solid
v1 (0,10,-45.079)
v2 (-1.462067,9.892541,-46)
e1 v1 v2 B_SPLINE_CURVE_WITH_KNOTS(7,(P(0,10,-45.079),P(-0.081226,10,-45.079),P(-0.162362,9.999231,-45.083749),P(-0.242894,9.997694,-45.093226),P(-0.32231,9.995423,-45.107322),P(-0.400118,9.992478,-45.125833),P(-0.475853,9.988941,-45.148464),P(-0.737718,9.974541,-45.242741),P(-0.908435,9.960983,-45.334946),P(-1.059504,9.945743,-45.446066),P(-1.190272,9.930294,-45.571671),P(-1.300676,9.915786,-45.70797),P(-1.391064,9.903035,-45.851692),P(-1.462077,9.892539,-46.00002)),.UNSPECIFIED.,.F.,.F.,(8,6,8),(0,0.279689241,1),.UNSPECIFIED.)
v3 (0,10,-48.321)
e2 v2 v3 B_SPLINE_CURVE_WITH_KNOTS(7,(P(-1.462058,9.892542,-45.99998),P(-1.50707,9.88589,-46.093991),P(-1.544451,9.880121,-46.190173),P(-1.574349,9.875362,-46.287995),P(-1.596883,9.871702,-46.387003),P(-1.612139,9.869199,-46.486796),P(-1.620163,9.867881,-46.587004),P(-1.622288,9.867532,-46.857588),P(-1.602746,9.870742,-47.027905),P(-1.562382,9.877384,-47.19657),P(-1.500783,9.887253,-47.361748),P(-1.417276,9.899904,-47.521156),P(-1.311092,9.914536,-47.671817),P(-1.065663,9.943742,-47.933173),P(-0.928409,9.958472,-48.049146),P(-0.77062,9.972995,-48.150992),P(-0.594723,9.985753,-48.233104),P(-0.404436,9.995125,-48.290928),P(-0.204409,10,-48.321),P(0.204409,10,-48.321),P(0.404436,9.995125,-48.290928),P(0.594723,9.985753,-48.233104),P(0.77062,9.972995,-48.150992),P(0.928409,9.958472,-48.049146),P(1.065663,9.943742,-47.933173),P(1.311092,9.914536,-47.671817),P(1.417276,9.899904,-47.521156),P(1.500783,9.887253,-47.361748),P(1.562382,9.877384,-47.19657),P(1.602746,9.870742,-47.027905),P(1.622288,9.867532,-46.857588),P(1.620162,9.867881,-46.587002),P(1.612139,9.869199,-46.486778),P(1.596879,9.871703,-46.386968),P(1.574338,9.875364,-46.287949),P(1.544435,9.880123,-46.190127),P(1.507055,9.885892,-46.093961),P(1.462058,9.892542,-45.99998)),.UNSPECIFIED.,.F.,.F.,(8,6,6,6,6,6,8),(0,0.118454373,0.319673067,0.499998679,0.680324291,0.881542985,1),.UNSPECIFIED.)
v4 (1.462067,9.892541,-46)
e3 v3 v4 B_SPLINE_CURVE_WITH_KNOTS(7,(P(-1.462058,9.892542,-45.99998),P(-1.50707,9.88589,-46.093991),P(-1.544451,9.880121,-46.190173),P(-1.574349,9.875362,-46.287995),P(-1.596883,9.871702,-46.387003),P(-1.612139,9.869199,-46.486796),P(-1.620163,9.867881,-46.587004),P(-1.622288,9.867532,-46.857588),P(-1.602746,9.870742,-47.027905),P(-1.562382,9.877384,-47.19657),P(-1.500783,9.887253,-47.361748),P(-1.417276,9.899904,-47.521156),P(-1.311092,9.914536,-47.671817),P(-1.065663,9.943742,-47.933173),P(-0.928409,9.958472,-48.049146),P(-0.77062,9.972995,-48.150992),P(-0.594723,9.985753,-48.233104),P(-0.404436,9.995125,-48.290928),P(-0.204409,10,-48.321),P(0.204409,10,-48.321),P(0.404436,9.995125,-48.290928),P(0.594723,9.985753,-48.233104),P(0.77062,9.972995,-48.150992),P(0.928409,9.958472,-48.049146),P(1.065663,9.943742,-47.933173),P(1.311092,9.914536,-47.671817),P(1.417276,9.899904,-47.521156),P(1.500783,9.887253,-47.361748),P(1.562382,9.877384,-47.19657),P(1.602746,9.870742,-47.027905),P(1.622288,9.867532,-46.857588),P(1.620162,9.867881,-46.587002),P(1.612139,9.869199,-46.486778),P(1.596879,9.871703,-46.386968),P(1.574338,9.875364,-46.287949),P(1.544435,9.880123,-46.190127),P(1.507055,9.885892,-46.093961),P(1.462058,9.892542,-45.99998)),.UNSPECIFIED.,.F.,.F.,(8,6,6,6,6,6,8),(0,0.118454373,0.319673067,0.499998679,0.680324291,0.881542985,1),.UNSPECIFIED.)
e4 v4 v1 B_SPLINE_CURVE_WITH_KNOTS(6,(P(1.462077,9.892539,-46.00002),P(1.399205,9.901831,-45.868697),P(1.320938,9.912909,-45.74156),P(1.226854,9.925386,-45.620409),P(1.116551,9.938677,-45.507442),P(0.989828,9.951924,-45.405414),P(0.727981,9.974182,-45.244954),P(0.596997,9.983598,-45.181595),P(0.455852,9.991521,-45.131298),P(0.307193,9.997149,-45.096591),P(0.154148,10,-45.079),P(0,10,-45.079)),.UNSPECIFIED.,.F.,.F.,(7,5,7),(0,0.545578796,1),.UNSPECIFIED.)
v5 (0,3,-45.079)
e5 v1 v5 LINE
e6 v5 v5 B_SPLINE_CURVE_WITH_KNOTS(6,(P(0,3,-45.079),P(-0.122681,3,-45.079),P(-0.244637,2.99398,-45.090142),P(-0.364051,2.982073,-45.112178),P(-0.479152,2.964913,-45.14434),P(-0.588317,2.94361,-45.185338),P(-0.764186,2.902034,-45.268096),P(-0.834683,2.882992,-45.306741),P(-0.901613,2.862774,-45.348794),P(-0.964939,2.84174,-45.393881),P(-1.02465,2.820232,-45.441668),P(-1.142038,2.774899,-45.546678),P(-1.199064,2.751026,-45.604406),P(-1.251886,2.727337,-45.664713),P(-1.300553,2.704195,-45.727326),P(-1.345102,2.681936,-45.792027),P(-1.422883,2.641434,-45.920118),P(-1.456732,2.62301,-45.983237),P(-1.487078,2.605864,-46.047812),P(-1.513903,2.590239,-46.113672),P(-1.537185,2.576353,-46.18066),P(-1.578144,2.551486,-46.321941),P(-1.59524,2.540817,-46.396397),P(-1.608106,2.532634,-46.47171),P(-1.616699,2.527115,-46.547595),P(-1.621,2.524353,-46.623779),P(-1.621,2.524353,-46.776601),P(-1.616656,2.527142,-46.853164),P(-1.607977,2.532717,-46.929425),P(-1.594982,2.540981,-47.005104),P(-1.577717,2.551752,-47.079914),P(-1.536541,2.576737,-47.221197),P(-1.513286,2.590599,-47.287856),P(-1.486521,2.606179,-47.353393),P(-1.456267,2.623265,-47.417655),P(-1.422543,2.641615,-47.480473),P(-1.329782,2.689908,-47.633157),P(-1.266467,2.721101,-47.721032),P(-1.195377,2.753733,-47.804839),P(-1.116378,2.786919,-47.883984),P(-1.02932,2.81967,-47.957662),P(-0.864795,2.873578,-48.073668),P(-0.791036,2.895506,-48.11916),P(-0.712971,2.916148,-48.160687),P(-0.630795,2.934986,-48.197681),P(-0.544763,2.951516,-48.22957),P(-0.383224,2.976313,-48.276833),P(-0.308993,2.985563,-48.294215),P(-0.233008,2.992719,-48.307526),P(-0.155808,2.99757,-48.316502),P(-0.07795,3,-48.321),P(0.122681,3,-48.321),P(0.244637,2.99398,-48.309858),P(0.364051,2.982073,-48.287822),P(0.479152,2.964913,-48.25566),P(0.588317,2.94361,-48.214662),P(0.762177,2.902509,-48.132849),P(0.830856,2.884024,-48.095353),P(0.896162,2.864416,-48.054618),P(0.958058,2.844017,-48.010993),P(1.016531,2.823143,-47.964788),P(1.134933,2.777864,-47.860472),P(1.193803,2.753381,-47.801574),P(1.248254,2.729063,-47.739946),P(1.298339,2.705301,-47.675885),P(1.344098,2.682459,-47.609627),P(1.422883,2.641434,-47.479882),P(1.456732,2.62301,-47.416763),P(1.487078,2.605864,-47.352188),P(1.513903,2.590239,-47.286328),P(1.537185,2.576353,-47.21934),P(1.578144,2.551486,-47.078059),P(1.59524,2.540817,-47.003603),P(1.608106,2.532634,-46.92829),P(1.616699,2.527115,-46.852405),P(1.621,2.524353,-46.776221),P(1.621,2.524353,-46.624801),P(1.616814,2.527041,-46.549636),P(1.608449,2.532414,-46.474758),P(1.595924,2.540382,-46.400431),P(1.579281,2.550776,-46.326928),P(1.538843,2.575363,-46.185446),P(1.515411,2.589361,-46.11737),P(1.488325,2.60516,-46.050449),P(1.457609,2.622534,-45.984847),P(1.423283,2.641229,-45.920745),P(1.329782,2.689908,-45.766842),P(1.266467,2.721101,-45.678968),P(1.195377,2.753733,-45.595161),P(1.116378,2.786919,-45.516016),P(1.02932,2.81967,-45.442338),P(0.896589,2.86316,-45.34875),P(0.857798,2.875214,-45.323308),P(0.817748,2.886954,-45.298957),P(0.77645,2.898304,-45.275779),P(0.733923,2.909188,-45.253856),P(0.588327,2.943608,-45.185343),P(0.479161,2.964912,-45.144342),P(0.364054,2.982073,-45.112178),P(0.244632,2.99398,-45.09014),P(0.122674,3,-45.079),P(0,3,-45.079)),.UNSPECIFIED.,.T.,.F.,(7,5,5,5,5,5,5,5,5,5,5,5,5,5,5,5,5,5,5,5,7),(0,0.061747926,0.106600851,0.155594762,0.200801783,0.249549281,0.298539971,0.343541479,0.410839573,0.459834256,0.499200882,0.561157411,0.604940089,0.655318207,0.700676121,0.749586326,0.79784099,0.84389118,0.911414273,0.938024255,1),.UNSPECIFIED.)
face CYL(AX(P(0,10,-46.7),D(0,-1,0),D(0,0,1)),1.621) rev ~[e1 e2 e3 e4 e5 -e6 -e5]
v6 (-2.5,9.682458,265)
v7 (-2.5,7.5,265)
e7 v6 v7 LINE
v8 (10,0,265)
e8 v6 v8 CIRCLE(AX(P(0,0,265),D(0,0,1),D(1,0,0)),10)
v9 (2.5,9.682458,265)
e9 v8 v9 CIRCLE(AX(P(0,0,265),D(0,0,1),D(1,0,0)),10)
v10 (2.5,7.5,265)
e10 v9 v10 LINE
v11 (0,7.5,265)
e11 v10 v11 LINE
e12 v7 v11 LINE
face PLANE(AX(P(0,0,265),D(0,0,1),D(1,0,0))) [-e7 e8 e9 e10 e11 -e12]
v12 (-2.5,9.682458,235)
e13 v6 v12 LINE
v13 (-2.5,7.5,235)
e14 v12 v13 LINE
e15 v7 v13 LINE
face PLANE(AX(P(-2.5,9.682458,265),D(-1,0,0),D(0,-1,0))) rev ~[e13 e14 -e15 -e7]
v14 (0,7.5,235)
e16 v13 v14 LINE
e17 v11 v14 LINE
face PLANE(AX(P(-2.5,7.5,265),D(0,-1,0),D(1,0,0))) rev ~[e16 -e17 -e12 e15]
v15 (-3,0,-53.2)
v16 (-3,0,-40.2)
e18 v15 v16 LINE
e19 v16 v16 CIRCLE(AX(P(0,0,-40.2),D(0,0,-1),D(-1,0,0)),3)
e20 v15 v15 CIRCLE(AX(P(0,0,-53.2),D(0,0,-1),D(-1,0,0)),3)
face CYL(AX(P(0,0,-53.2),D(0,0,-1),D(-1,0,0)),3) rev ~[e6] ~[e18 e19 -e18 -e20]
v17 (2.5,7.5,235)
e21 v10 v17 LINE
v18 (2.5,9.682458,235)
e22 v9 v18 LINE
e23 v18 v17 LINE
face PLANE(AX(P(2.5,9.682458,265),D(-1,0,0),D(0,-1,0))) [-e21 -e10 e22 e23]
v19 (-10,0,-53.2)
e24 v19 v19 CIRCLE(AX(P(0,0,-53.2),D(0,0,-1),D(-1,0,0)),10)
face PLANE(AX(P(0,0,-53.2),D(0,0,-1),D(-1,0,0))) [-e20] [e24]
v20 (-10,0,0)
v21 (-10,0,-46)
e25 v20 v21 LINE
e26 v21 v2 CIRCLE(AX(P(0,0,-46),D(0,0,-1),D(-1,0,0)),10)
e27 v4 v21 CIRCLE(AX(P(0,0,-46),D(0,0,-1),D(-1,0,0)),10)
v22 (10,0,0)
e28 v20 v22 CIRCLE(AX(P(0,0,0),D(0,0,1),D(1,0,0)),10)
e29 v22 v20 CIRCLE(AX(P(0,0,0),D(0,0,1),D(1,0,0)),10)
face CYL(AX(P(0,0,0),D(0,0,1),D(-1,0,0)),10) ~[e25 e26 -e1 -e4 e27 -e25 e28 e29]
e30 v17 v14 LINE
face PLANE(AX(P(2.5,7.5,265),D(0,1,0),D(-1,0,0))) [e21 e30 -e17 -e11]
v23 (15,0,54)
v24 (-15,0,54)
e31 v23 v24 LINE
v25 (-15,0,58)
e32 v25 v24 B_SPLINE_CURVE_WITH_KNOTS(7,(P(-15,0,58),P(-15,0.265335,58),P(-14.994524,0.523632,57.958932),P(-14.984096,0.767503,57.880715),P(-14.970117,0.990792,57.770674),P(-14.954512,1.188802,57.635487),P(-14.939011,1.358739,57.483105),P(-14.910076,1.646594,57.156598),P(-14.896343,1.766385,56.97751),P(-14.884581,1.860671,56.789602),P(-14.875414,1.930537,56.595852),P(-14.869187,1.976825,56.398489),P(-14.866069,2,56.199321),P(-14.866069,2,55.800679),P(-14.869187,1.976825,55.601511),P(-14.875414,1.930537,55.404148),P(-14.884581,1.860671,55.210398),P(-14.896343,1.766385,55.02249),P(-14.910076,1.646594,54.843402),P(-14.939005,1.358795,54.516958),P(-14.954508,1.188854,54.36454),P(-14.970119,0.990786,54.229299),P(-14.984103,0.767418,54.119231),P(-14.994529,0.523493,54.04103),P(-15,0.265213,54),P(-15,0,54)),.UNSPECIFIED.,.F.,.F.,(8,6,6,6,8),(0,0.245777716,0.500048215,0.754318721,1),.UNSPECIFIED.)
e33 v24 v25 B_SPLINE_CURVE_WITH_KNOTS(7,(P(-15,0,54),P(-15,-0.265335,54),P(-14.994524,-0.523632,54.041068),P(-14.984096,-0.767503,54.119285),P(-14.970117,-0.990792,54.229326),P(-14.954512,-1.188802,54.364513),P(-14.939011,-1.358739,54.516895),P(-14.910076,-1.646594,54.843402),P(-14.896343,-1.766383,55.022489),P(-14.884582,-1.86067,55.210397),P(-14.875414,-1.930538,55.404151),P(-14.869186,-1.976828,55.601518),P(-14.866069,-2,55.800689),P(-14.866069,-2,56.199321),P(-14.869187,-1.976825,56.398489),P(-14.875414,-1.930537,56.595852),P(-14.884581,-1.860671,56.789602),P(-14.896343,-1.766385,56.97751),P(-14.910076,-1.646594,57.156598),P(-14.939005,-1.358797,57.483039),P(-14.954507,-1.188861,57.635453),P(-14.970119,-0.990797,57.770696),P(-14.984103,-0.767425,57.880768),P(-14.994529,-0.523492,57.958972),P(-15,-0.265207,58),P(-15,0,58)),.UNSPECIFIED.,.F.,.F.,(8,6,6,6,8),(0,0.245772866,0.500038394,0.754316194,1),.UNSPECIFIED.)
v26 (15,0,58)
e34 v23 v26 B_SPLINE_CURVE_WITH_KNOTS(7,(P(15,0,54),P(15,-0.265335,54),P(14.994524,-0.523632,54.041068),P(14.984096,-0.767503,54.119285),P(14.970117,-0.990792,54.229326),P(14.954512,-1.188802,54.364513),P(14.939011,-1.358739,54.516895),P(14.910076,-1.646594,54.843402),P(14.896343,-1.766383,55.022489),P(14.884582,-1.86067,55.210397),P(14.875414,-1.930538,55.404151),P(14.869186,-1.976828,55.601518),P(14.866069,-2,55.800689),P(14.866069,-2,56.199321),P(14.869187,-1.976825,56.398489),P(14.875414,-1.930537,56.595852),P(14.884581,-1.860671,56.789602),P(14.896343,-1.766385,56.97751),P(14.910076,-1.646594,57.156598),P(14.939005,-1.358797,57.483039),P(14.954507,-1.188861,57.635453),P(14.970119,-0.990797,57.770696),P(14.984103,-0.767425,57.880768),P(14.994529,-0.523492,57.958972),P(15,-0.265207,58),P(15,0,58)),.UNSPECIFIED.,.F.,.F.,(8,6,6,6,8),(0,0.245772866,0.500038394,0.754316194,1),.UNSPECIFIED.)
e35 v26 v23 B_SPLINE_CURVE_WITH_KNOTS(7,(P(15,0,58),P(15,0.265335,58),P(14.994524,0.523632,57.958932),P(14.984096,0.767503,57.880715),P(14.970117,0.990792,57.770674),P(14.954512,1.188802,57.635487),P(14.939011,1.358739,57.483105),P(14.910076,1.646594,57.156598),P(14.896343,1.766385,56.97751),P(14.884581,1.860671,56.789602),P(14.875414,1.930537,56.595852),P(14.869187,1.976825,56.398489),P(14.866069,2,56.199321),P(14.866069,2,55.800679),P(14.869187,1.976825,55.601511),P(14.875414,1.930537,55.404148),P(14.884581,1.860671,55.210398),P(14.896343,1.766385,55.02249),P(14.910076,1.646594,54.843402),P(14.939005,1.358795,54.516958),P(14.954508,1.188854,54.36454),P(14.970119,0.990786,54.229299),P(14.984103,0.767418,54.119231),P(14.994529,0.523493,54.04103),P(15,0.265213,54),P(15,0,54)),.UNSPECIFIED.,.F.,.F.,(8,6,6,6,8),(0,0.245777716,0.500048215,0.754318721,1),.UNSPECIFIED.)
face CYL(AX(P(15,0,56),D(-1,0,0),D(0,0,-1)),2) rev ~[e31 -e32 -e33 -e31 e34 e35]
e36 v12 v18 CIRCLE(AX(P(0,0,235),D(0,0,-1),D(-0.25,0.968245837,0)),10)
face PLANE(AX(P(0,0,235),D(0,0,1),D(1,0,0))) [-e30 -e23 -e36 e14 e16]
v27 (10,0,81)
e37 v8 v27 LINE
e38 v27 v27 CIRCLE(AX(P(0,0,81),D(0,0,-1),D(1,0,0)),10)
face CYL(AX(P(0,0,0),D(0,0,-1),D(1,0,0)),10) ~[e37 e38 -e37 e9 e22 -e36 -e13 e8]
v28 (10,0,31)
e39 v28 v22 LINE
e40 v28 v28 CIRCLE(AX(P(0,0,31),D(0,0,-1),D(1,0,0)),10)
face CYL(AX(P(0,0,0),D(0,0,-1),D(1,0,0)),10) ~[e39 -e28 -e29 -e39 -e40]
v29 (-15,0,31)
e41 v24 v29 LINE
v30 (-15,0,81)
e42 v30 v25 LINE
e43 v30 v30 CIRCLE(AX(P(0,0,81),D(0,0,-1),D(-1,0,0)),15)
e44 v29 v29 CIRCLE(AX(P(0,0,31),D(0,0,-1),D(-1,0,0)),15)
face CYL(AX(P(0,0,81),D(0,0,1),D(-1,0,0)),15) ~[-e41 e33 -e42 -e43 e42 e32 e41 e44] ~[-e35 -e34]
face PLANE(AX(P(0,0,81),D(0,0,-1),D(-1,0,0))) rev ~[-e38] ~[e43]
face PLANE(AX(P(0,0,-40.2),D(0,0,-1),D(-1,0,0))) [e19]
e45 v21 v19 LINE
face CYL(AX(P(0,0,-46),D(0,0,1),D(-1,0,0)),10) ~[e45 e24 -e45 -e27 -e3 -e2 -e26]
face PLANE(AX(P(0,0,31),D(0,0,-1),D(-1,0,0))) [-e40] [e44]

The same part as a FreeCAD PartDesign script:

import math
import FreeCAD as App
import Part
import Sketcher
from FreeCAD import Vector

doc = App.newDocument("Part")
body = doc.addObject("PartDesign::Body", "Body")

# Sketch on XY plane
sketch1 = body.newObject("Sketcher::SketchObject", "Sketch")
sketch1.AttachmentSupport = (doc.getObject("XY_Plane"), [""])
sketch1.MapMode = "FlatFace"
sketch1.addGeometry(Part.Circle(Vector(0, 0, 0), Vector(0, 0, 1), 10), False)
sketch1.addConstraint([
    Sketcher.Constraint("Coincident", 0, 3, -1, 1),
    Sketcher.Constraint("Diameter", 0, 20.0),
])
pad1 = body.newObject("PartDesign::Pad", "Pad")
pad1.Profile = sketch1
pad1.Length = 65

# Sketch on XY plane
sketch2 = body.newObject("Sketcher::SketchObject", "Sketch001")
sketch2.AttachmentSupport = (doc.getObject("XY_Plane"), [""])
sketch2.MapMode = "FlatFace"
sketch2.AttachmentOffset = App.Placement(Vector(0, 0, 65), App.Rotation())
sketch2.addGeometry(Part.Circle(Vector(0, 0, 0), Vector(0, 0, 1), 10), False)
sketch2.addConstraint([
    Sketcher.Constraint("Coincident", 0, 3, -1, 1),
    Sketcher.Constraint("Diameter", 0, 20.0),
])
pad2 = body.newObject("PartDesign::Pad", "Pad001")
pad2.Profile = sketch2
pad2.Length = 150

# Sketch on XY plane
sketch3 = body.newObject("Sketcher::SketchObject", "Sketch002")
sketch3.AttachmentSupport = (doc.getObject("XY_Plane"), [""])
sketch3.MapMode = "FlatFace"
sketch3.addGeometry(Part.Circle(Vector(0, 0, 0), Vector(0, 0, 1), 10), False)
sketch3.addConstraint([
    Sketcher.Constraint("Coincident", 0, 3, -1, 1),
    Sketcher.Constraint("Diameter", 0, 20.0),
])
pad3 = body.newObject("PartDesign::Pad", "Pad002")
pad3.Profile = sketch3
pad3.Length = 100
pad3.Reversed = True

# Sketch on XY plane
sketch4 = body.newObject("Sketcher::SketchObject", "Sketch003")
sketch4.AttachmentSupport = (doc.getObject("XY_Plane"), [""])
sketch4.MapMode = "FlatFace"
sketch4.AttachmentOffset = App.Placement(Vector(0, 0, -100), App.Rotation())
sketch4.addGeometry(Part.Circle(Vector(0, 0, 0), Vector(0, 0, 1), 10), False)
sketch4.addConstraint([
    Sketcher.Constraint("Coincident", 0, 3, -1, 1),
    Sketcher.Constraint("Diameter", 0, 20.0),
])
pocket1 = body.newObject("PartDesign::Pocket", "Pocket")
pocket1.Profile = sketch4
pocket1.Length = 54
pocket1.Reversed = True

# Sketch on XY plane
sketch5 = body.newObject("Sketcher::SketchObject", "Sketch004")
sketch5.AttachmentSupport = (doc.getObject("XY_Plane"), [""])
sketch5.MapMode = "FlatFace"
sketch5.AttachmentOffset = App.Placement(Vector(0, 0, 215), App.Rotation())
sketch5.addGeometry(Part.Circle(Vector(0, 0, 0), Vector(0, 0, 1), 10), False)
sketch5.addConstraint([
    Sketcher.Constraint("Coincident", 0, 3, -1, 1),
    Sketcher.Constraint("Diameter", 0, 20.0),
])
pad4 = body.newObject("PartDesign::Pad", "Pad003")
pad4.Profile = sketch5
pad4.Length = 50

# Sketch on XY plane
sketch6 = body.newObject("Sketcher::SketchObject", "Sketch005")
sketch6.AttachmentSupport = (doc.getObject("XY_Plane"), [""])
sketch6.MapMode = "FlatFace"
sketch6.AttachmentOffset = App.Placement(Vector(0, 0, 81), App.Rotation())
sketch6.addGeometry(Part.Circle(Vector(0, 0, 0), Vector(0, 0, 1), 15), False)
sketch6.addConstraint([
    Sketcher.Constraint("Coincident", 0, 3, -1, 1),
    Sketcher.Constraint("Diameter", 0, 30.0),
])
pad5 = body.newObject("PartDesign::Pad", "Pad004")
pad5.Profile = sketch6
pad5.Length = 50
pad5.Reversed = True

# Sketch on XY plane
sketch7 = body.newObject("Sketcher::SketchObject", "Sketch006")
sketch7.AttachmentSupport = (doc.getObject("XY_Plane"), [""])
sketch7.MapMode = "FlatFace"
sketch7.AttachmentOffset = App.Placement(Vector(0, 0, -46), App.Rotation())
sketch7.addGeometry(Part.Circle(Vector(0, 0, 0), Vector(0, 0, 1), 10), False)
sketch7.addConstraint([
    Sketcher.Constraint("Coincident", 0, 3, -1, 1),
    Sketcher.Constraint("Diameter", 0, 20.0),
])
pad6 = body.newObject("PartDesign::Pad", "Pad005")
pad6.Profile = sketch7
pad6.Length = 7.2
pad6.Reversed = True

# Sketch on YZ plane
sketch8 = body.newObject("Sketcher::SketchObject", "Sketch007")
sketch8.AttachmentSupport = (doc.getObject("YZ_Plane"), [""])
sketch8.MapMode = "FlatFace"
sketch8.AttachmentOffset = App.Placement(Vector(0, 0, 15), App.Rotation())
sketch8.addGeometry(Part.Circle(Vector(0, 56, 0), Vector(0, 0, 1), 2), False)
sketch8.addConstraint([
    Sketcher.Constraint("PointOnObject", 0, 3, -2),
    Sketcher.Constraint("Diameter", 0, 4.0),
    Sketcher.Constraint("DistanceY", -1, 1, 0, 3, 56.0),
])
doc.recompute()
hole = body.newObject("PartDesign::Hole", "Hole")
hole.Profile = sketch8
hole.ThreadType = "None"
hole.Diameter = 4
hole.DepthType = "ThroughAll"

# Sketch on XY plane
sketch9 = body.newObject("Sketcher::SketchObject", "Sketch008")
sketch9.AttachmentSupport = (doc.getObject("XY_Plane"), [""])
sketch9.MapMode = "FlatFace"
sketch9.AttachmentOffset = App.Placement(Vector(0, 0, 265), App.Rotation())
sketch9.addGeometry([
    Part.LineSegment(Vector(2.5, 7.5, 0), Vector(2.5, 9.7, 0)),
    Part.ArcOfCircle(Part.Circle(Vector(0, 0, 0), Vector(0, 0, 1), 10), math.radians(76), math.radians(104)),
    Part.LineSegment(Vector(-2.5, 9.7, 0), Vector(-2.5, 7.5, 0)),
    Part.LineSegment(Vector(-2.5, 7.5, 0), Vector(2.5, 7.5, 0)),
], False)
sketch9.addConstraint([
    Sketcher.Constraint("Coincident", 0, 2, 1, 1),
    Sketcher.Constraint("Coincident", 1, 2, 2, 1),
    Sketcher.Constraint("Coincident", 2, 2, 3, 1),
    Sketcher.Constraint("Coincident", 3, 2, 0, 1),
    Sketcher.Constraint("Vertical", 0),
    Sketcher.Constraint("Vertical", 2),
    Sketcher.Constraint("Horizontal", 3),
    Sketcher.Constraint("Coincident", 1, 3, -1, 1),
    Sketcher.Constraint("Horizontal", 0, 2, 1, 2),
    Sketcher.Constraint("Radius", 1, 10.0),
    Sketcher.Constraint("DistanceX", 3, 1, 3, 2, 5.0),
    Sketcher.Constraint("DistanceY", -1, 1, 2, 2, 7.5),
])
pocket2 = body.newObject("PartDesign::Pocket", "Pocket001")
pocket2.Profile = sketch9
pocket2.Length = 30

# Sketch on XY plane
sketch10 = body.newObject("Sketcher::SketchObject", "Sketch009")
sketch10.AttachmentSupport = (doc.getObject("XY_Plane"), [""])
sketch10.MapMode = "FlatFace"
sketch10.AttachmentOffset = App.Placement(Vector(0, 0, -53.2), App.Rotation())
sketch10.addGeometry(Part.Circle(Vector(0, 0, 0), Vector(0, 0, 1), 3), False)
sketch10.addConstraint([
    Sketcher.Constraint("Coincident", 0, 3, -1, 1),
    Sketcher.Constraint("Diameter", 0, 6.0),
])
pocket3 = body.newObject("PartDesign::Pocket", "Pocket002")
pocket3.Profile = sketch10
pocket3.Length = 13
pocket3.Reversed = True

# Sketch on XZ plane
sketch11 = body.newObject("Sketcher::SketchObject", "Sketch010")
sketch11.AttachmentSupport = (doc.getObject("XZ_Plane"), [""])
sketch11.MapMode = "FlatFace"
sketch11.AttachmentOffset = App.Placement(Vector(0, 0, -10), App.Rotation())
sketch11.addGeometry(Part.Circle(Vector(0, -46.7, 0), Vector(0, 0, 1), 1.6), False)
sketch11.addConstraint([
    Sketcher.Constraint("PointOnObject", 0, 3, -2),
    Sketcher.Constraint("Diameter", 0, 3.242),
    Sketcher.Constraint("DistanceY", 0, 3, -1, 1, 46.7),
])
doc.recompute()
hole2 = body.newObject("PartDesign::Hole", "Hole001")
hole2.Profile = sketch11
hole2.ThreadType = "None"
hole2.Diameter = 3.242
hole2.DepthType = "Dimension"
hole2.Depth = 9
hole2.DrillPoint = "Angled"
hole2.DrillPointAngle = 118
hole2.Reversed = True

doc.recompute()
